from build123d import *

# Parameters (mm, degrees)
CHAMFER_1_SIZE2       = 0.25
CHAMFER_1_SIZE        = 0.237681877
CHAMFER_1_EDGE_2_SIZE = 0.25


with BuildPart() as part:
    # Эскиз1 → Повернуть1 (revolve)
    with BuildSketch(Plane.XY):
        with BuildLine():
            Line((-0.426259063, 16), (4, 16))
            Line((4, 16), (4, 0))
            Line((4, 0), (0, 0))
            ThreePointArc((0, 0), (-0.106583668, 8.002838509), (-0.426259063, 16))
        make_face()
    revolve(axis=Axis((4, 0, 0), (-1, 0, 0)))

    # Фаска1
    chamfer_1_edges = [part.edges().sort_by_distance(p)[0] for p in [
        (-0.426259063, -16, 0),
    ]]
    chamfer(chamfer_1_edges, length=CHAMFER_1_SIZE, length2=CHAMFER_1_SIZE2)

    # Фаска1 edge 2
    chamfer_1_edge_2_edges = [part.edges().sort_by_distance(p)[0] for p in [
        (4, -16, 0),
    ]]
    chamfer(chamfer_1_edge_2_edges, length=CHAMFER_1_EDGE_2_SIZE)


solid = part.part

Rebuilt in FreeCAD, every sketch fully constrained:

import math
import FreeCAD as App
import Part
import Sketcher
from FreeCAD import Vector


def edges_at(feature, points):
    """Names of the edges that pass closest to the given points."""
    edges = feature.Shape.Edges
    near = lambda p: min(range(len(edges)), key=lambda i: edges[i].distToShape(Part.Vertex(*p))[0])
    return sorted({f"Edge{near(p) + 1}" for p in points})

doc = App.newDocument("Part")
body = doc.addObject("PartDesign::Body", "Body")

sketch1 = body.newObject("Sketcher::SketchObject", "Sketch")
sketch1.AttachmentSupport = (doc.getObject("XY_Plane"), [""])
sketch1.MapMode = "FlatFace"
sketch1.addGeometry([
    Part.LineSegment(Vector(4, 16, 0), Vector(-0.4, 16, 0)),
    Part.ArcOfCircle(Part.Circle(Vector(-300.5, 0, 0), Vector(0, 0, 1), 300.5), math.radians(0), math.radians(3.05)),
    Part.LineSegment(Vector(0, 0, 0), Vector(4, 0, 0)),
    Part.LineSegment(Vector(4, 0, 0), Vector(4, 16, 0)),
], False)
sketch1.addConstraint([
    Sketcher.Constraint("Coincident", 0, 2, 1, 2),
    Sketcher.Constraint("Coincident", 1, 1, 2, 1),
    Sketcher.Constraint("Coincident", 2, 2, 3, 1),
    Sketcher.Constraint("Coincident", 3, 2, 0, 1),
    Sketcher.Constraint("Horizontal", 0),
    Sketcher.Constraint("Horizontal", 2),
    Sketcher.Constraint("Vertical", 3),
    Sketcher.Constraint("PointOnObject", 1, 3, -1),
    Sketcher.Constraint("PointOnObject", 2, 2, -1),
    Sketcher.Constraint("Radius", 1, 300.500001),
    Sketcher.Constraint("DistanceX", 2, 1, 2, 2, 4.0),
    Sketcher.Constraint("DistanceY", 3, 1, 3, 2, 16.0),
    Sketcher.Constraint("DistanceX", -1, 1, 2, 2, 4.0),
])
revolution = body.newObject("PartDesign::Revolution", "Revolution")
revolution.Profile = sketch1
revolution.ReferenceAxis = (sketch1, ["H_Axis"])
revolution.Angle = 360
doc.recompute()

chamfer = body.newObject("PartDesign::Chamfer", "Chamfer")
chamfer.Base = (revolution, edges_at(revolution, [(-0.426, -16, 0)]))
chamfer.ChamferType = "Two distances"
chamfer.Size = 0.237682
chamfer.Size2 = 0.25
doc.recompute()

chamfer2 = body.newObject("PartDesign::Chamfer", "Chamfer001")
chamfer2.Base = (chamfer, edges_at(chamfer, [(4, -16, 0)]))
chamfer2.Size = 0.25

doc.recompute()
